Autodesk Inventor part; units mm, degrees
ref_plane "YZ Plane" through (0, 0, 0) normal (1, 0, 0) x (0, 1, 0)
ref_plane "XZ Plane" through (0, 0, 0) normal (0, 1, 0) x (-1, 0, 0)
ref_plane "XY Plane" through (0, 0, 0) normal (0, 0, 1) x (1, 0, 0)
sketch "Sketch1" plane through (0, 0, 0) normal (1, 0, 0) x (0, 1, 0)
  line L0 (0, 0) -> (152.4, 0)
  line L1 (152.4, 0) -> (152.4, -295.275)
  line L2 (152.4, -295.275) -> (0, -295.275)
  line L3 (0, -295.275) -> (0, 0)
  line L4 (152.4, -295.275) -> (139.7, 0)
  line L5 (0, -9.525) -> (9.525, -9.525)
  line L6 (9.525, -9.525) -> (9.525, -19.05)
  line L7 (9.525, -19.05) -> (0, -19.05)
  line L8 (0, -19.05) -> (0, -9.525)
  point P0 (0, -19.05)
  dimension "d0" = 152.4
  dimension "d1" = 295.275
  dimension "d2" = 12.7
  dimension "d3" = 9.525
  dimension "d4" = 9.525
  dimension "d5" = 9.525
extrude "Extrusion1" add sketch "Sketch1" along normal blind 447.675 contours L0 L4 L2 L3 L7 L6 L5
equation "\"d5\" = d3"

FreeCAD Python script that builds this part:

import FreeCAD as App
import Part
import Sketcher
from FreeCAD import Vector
Q = App.Units.Quantity


def add_polygon(sketch, points):
    """Adds a closed chain of lines whose ends are joined by coincident constraints."""
    first, n = sketch.GeometryCount, len(points)
    for a, b in zip(points, points[1:] + points[:1]):
        sketch.addGeometry(Part.LineSegment(App.Vector(*a, 0), App.Vector(*b, 0)), False)
    for i in range(n):
        sketch.addConstraint(Sketcher.Constraint("Coincident", first + i, 2, first + (i + 1) % n, 1))

doc = App.newDocument("Part")
params = doc.addObject("Spreadsheet::Sheet", "Params")
for row, (alias, value) in enumerate([
    ("sketch1_width", "6 in"),
    ("sketch1_width2", "0.375 in"),
    ("sketch1_width3", "5.5 in"),
    ("pad1_length", "17.625 in"),
], start=1):
    params.set(f"A{row}", alias)
    params.set(f"B{row}", "=" + value)
    params.setAlias(f"B{row}", alias)

body = doc.addObject("PartDesign::Body", "Body")

# Sketch on YZ plane
sketch1 = body.newObject("Sketcher::SketchObject", "Sketch")
sketch1.AttachmentSupport = (doc.getObject("YZ_Plane"), [""])
sketch1.MapMode = "FlatFace"
add_polygon(sketch1, [(140, 0), (0, 0), (0, -10), (10, -10), (10, -19), (0, -19), (0, -295), (152, -295)])  # lines 0-7
sketch1.addConstraint([
    Sketcher.Constraint("Horizontal", 0),
    Sketcher.Constraint("Vertical", 1),
    Sketcher.Constraint("Horizontal", 2),
    Sketcher.Constraint("Vertical", 3),
    Sketcher.Constraint("Horizontal", 4),
    Sketcher.Constraint("Vertical", 5),
    Sketcher.Constraint("Horizontal", 6),
    Sketcher.Constraint("Coincident", 0, 2, -1, 1),
    Sketcher.Constraint("PointOnObject", 4, 2, -2),
    Sketcher.Constraint("Equal", 4, 1),
    Sketcher.Constraint("Equal", 1, 3),
    Sketcher.Constraint("DistanceX", 6, 1, 6, 2, Q("6 in")),
    Sketcher.Constraint("DistanceX", 2, 1, 2, 2, Q("0.375 in")),
    Sketcher.Constraint("DistanceX", 0, 2, 0, 1, Q("5.5 in")),
    Sketcher.Constraint("DistanceY", 5, 2, -1, 1, Q("11.625 in")),
])
sketch1.setExpression("Constraints[19]", "Params.sketch1_width")
sketch1.setExpression("Constraints[20]", "Params.sketch1_width2")
sketch1.setExpression("Constraints[21]", "Params.sketch1_width3")
pad1 = body.newObject("PartDesign::Pad", "Pad")
pad1.Profile = sketch1
pad1.setExpression("Length", "Params.pad1_length")

doc.recompute()
